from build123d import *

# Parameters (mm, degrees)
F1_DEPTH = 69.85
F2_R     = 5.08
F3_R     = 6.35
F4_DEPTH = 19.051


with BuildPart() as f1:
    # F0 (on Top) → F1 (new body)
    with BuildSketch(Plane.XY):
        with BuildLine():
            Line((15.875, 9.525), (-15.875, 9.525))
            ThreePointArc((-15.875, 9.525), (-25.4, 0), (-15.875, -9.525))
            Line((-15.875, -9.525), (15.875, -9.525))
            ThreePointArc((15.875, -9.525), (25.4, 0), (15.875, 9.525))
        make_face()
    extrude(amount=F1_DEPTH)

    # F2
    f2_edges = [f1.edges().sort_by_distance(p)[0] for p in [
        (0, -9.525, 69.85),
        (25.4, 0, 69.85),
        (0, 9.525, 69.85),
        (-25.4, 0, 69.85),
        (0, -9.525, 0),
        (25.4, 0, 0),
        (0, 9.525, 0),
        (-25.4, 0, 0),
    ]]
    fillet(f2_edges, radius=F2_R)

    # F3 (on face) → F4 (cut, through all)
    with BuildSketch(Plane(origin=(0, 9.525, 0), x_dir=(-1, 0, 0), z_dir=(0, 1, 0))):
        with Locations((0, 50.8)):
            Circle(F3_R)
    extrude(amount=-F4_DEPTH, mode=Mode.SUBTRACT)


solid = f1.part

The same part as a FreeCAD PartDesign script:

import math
import FreeCAD as App
import Part
import Sketcher

V = App.Vector
Q = App.Units.Quantity


def edges_at(feature, points):
    """Names of the edges that pass closest to the given points."""
    edges = feature.Shape.Edges
    near = lambda p: min(range(len(edges)), key=lambda i: edges[i].distToShape(Part.Vertex(*p))[0])
    return sorted({f"Edge{near(p) + 1}" for p in points})

doc = App.newDocument("Part")
body = doc.addObject("PartDesign::Body", "Body")

# Sketch on XY plane
sketch1 = body.newObject("Sketcher::SketchObject", "Sketch")
sketch1.AttachmentSupport = (doc.getObject("XY_Plane"), [""])
sketch1.MapMode = "FlatFace"
sketch1.addGeometry(Part.LineSegment(V(15.875, 9.525, 0), V(-15.875, 9.525, 0)), False)
sketch1.addGeometry(Part.ArcOfCircle(Part.Circle(V(-15.875, 0, 0), V(0, 0, 1), 9.525), math.radians(90), math.radians(270)), False)
sketch1.addGeometry(Part.LineSegment(V(-15.875, -9.525, 0), V(15.875, -9.525, 0)), False)
sketch1.addGeometry(Part.ArcOfCircle(Part.Circle(V(15.875, 0, 0), V(0, 0, 1), 9.525), math.radians(-90), math.radians(90)), False)
sketch1.addConstraint(Sketcher.Constraint("Tangent", 0, 2, 1, 1))
sketch1.addConstraint(Sketcher.Constraint("Tangent", 1, 2, 2, 1))
sketch1.addConstraint(Sketcher.Constraint("Tangent", 2, 2, 3, 1))
sketch1.addConstraint(Sketcher.Constraint("Tangent", 3, 2, 0, 1))
sketch1.addConstraint(Sketcher.Constraint("Horizontal", 0))
sketch1.addConstraint(Sketcher.Constraint("Horizontal", 2))
sketch1.addConstraint(Sketcher.Constraint("Symmetric", 1, 3, 3, 3, -1, 1))
sketch1.addConstraint(Sketcher.Constraint("Radius", 1, Q("0.375 in")))
sketch1.addConstraint(Sketcher.Constraint("DistanceX", 0, 2, 0, 1, Q("1.25 in")))
pad1 = body.newObject("PartDesign::Pad", "Pad")
pad1.Profile = sketch1
pad1.Length = Q("2.75 in")
doc.recompute()

fillet = body.newObject("PartDesign::Fillet", "Fillet")
fillet.Base = (pad1, edges_at(pad1, [
    (0, -9.525, 69.85),
    (25.4, 0, 69.85),
    (0, 9.525, 69.85),
    (-25.4, 0, 69.85),
    (0, -9.525, 0),
    (25.4, 0, 0),
    (0, 9.525, 0),
    (-25.4, 0, 0),
]))
fillet.Radius = Q("0.2 in")

# Sketch on XZ plane
sketch2 = body.newObject("Sketcher::SketchObject", "Sketch001")
sketch2.AttachmentSupport = (doc.getObject("XZ_Plane"), [""])
sketch2.MapMode = "FlatFace"
sketch2.AttachmentOffset = App.Placement(V(0, 0, -0.375 * 25.4), App.Rotation())
sketch2.addGeometry(Part.Circle(V(0, 50.8, 0), V(0, 0, 1), 6.35), False)
sketch2.addConstraint(Sketcher.Constraint("PointOnObject", 0, 3, -2))
sketch2.addConstraint(Sketcher.Constraint("Diameter", 0, Q("0.5 in")))
sketch2.addConstraint(Sketcher.Constraint("DistanceY", -1, 1, 0, 3, Q("2 in")))
pocket1 = body.newObject("PartDesign::Pocket", "Pocket")
pocket1.Profile = sketch2
pocket1.Type = "ThroughAll"
pocket1.Reversed = True

doc.recompute()
